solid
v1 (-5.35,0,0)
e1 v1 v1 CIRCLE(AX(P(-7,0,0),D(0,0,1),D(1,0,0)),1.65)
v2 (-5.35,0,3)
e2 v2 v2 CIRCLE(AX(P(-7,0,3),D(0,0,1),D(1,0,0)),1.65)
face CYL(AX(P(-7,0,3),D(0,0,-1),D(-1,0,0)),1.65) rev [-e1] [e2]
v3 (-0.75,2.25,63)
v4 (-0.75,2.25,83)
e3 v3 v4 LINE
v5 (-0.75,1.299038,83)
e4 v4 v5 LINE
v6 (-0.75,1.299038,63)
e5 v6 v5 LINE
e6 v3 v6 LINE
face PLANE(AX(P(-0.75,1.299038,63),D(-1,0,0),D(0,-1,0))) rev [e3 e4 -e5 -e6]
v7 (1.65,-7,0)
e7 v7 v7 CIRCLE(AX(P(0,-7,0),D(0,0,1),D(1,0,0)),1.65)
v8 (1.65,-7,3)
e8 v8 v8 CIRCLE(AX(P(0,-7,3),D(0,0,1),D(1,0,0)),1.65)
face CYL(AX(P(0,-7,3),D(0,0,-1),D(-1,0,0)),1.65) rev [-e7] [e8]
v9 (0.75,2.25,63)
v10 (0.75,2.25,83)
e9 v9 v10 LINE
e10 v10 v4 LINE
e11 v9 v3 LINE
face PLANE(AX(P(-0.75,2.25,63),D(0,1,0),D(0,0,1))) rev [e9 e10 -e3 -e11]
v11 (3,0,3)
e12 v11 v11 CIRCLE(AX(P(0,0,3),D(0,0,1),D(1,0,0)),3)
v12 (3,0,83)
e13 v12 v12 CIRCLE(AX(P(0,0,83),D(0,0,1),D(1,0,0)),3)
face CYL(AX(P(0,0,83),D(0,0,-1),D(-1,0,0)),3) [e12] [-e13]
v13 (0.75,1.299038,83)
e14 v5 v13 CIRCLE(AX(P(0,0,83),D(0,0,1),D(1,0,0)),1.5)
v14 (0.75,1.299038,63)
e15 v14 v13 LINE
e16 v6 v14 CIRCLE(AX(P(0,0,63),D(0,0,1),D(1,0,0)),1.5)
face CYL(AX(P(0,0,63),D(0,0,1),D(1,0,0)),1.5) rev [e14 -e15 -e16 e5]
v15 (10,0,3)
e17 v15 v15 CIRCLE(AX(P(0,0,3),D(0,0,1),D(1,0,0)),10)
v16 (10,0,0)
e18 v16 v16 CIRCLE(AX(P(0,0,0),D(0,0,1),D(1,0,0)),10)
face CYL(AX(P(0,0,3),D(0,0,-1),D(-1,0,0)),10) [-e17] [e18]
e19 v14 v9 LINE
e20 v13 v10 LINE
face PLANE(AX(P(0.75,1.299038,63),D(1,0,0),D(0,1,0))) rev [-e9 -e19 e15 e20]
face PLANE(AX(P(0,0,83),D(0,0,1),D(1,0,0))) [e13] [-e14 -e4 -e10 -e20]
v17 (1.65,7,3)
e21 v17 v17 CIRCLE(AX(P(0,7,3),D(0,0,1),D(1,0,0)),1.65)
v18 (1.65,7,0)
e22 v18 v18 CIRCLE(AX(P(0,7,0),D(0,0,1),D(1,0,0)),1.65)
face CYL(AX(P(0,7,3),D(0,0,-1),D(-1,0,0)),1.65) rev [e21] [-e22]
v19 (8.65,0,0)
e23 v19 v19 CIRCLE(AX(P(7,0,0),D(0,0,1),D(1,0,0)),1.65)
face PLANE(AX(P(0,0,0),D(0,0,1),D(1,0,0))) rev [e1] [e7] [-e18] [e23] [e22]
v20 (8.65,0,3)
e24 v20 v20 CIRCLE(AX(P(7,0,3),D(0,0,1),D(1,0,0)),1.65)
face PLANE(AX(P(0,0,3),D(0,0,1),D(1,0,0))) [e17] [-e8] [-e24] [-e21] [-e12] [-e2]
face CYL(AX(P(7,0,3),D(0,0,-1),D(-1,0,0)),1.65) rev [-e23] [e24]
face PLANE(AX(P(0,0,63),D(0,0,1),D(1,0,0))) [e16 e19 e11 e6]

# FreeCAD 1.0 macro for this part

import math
import FreeCAD as App
import Part
import Sketcher

V = App.Vector

doc = App.newDocument("Part")
params = doc.addObject("Spreadsheet::Sheet", "Params")
for row, (alias, value) in enumerate([
    ("sketch1_diameter", "20 mm"),
    ("sketch1_diameter2", "3.3 mm"),
    ("pad1_length", "3 mm"),
    ("sketch2_diameter", "6 mm"),
    ("pad2_length", "80 mm"),
    ("sketch3_radius", "1.5 mm"),
    ("sketch3_width", "1.5 mm"),
    ("pocket1_length", "20 mm"),
], start=1):
    params.set(f"A{row}", alias)
    params.set(f"B{row}", "=" + value)
    params.setAlias(f"B{row}", alias)

body = doc.addObject("PartDesign::Body", "Body")

# Sketch on XY plane
sketch1 = doc.addObject("Sketcher::SketchObject", "Sketch")
body.addObject(sketch1)
sketch1.AttachmentSupport = (doc.XY_Plane, [""])
sketch1.MapMode = "FlatFace"
sketch1.addGeometry(Part.Circle(V(0, 0, 0), V(0, 0, 1), 10), False)
sketch1.addGeometry(Part.Circle(V(0, -7, 0), V(0, 0, 1), 1.6), False)
sketch1.addGeometry(Part.Circle(V(-7, 0, 0), V(0, 0, 1), 1.6), False)
sketch1.addGeometry(Part.Circle(V(0, 7, 0), V(0, 0, 1), 1.6), False)
sketch1.addGeometry(Part.Circle(V(7, 0, 0), V(0, 0, 1), 1.6), False)
sketch1.addConstraint(Sketcher.Constraint("Coincident", 0, 3, -1, 1))
sketch1.addConstraint(Sketcher.Constraint("Equal", 1, 2))
sketch1.addConstraint(Sketcher.Constraint("Equal", 2, 3))
sketch1.addConstraint(Sketcher.Constraint("Equal", 3, 4))
sketch1.addConstraint(Sketcher.Constraint("Symmetric", 1, 3, 3, 3, -1, 1))
sketch1.addConstraint(Sketcher.Constraint("Symmetric", 2, 3, 4, 3, -1, 1))
sketch1.addConstraint(Sketcher.Constraint("PointOnObject", 1, 3, -2))
sketch1.addConstraint(Sketcher.Constraint("PointOnObject", 2, 3, -1))
sketch1.addConstraint(Sketcher.Constraint("Diameter", 0, 20.0))
sketch1.addConstraint(Sketcher.Constraint("Diameter", 1, 3.3))
sketch1.addConstraint(Sketcher.Constraint("DistanceY", 1, 3, -1, 1, 7.0))
sketch1.addConstraint(Sketcher.Constraint("DistanceX", 2, 3, -1, 1, 7.0))
sketch1.setExpression("Constraints[8]", "Params.sketch1_diameter")
sketch1.setExpression("Constraints[9]", "Params.sketch1_diameter2")
pad1 = doc.addObject("PartDesign::Pad", "Pad")
body.addObject(pad1)
pad1.Profile = sketch1
pad1.setExpression("Length", "Params.pad1_length")

# Sketch on XY plane
sketch2 = doc.addObject("Sketcher::SketchObject", "Sketch001")
body.addObject(sketch2)
sketch2.AttachmentSupport = (doc.XY_Plane, [""])
sketch2.MapMode = "FlatFace"
sketch2.AttachmentOffset = App.Placement(V(0, 0, 3), App.Rotation())
sketch2.addGeometry(Part.Circle(V(0, 0, 0), V(0, 0, 1), 3), False)
sketch2.addConstraint(Sketcher.Constraint("Coincident", 0, 3, -1, 1))
sketch2.addConstraint(Sketcher.Constraint("Diameter", 0, 6.0))
sketch2.setExpression("Constraints[1]", "Params.sketch2_diameter")
pad2 = doc.addObject("PartDesign::Pad", "Pad001")
body.addObject(pad2)
pad2.Profile = sketch2
pad2.setExpression("Length", "Params.pad2_length")

# Sketch on XY plane
sketch3 = doc.addObject("Sketcher::SketchObject", "Sketch002")
body.addObject(sketch3)
sketch3.AttachmentSupport = (doc.XY_Plane, [""])
sketch3.MapMode = "FlatFace"
sketch3.AttachmentOffset = App.Placement(V(0, 0, 83), App.Rotation())
sketch3.addGeometry(Part.LineSegment(V(-0.8, 2.2, 0), V(-0.8, 1.3, 0)), False)
sketch3.addGeometry(Part.ArcOfCircle(Part.Circle(V(0, 0, 0), V(0, 0, 1), 1.5), math.radians(120), math.radians(420)), False)
sketch3.addGeometry(Part.LineSegment(V(0.8, 1.3, 0), V(0.8, 2.2, 0)), False)
sketch3.addGeometry(Part.LineSegment(V(0.8, 2.2, 0), V(-0.8, 2.2, 0)), False)
sketch3.addConstraint(Sketcher.Constraint("Coincident", 0, 2, 1, 1))
sketch3.addConstraint(Sketcher.Constraint("Coincident", 1, 2, 2, 1))
sketch3.addConstraint(Sketcher.Constraint("Coincident", 2, 2, 3, 1))
sketch3.addConstraint(Sketcher.Constraint("Coincident", 3, 2, 0, 1))
sketch3.addConstraint(Sketcher.Constraint("Vertical", 0))
sketch3.addConstraint(Sketcher.Constraint("Vertical", 2))
sketch3.addConstraint(Sketcher.Constraint("Horizontal", 3))
sketch3.addConstraint(Sketcher.Constraint("Coincident", 1, 3, -1, 1))
sketch3.addConstraint(Sketcher.Constraint("Horizontal", 0, 2, 1, 2))
sketch3.addConstraint(Sketcher.Constraint("Radius", 1, 1.5))
sketch3.addConstraint(Sketcher.Constraint("DistanceX", 3, 2, 3, 1, 1.5))
sketch3.addConstraint(Sketcher.Constraint("DistanceY", -1, 1, 2, 2, 2.25))
sketch3.setExpression("Constraints[9]", "Params.sketch3_radius")
sketch3.setExpression("Constraints[10]", "Params.sketch3_width")
pocket1 = doc.addObject("PartDesign::Pocket", "Pocket")
body.addObject(pocket1)
pocket1.Profile = sketch3
pocket1.setExpression("Length", "Params.pocket1_length")

doc.recompute()
